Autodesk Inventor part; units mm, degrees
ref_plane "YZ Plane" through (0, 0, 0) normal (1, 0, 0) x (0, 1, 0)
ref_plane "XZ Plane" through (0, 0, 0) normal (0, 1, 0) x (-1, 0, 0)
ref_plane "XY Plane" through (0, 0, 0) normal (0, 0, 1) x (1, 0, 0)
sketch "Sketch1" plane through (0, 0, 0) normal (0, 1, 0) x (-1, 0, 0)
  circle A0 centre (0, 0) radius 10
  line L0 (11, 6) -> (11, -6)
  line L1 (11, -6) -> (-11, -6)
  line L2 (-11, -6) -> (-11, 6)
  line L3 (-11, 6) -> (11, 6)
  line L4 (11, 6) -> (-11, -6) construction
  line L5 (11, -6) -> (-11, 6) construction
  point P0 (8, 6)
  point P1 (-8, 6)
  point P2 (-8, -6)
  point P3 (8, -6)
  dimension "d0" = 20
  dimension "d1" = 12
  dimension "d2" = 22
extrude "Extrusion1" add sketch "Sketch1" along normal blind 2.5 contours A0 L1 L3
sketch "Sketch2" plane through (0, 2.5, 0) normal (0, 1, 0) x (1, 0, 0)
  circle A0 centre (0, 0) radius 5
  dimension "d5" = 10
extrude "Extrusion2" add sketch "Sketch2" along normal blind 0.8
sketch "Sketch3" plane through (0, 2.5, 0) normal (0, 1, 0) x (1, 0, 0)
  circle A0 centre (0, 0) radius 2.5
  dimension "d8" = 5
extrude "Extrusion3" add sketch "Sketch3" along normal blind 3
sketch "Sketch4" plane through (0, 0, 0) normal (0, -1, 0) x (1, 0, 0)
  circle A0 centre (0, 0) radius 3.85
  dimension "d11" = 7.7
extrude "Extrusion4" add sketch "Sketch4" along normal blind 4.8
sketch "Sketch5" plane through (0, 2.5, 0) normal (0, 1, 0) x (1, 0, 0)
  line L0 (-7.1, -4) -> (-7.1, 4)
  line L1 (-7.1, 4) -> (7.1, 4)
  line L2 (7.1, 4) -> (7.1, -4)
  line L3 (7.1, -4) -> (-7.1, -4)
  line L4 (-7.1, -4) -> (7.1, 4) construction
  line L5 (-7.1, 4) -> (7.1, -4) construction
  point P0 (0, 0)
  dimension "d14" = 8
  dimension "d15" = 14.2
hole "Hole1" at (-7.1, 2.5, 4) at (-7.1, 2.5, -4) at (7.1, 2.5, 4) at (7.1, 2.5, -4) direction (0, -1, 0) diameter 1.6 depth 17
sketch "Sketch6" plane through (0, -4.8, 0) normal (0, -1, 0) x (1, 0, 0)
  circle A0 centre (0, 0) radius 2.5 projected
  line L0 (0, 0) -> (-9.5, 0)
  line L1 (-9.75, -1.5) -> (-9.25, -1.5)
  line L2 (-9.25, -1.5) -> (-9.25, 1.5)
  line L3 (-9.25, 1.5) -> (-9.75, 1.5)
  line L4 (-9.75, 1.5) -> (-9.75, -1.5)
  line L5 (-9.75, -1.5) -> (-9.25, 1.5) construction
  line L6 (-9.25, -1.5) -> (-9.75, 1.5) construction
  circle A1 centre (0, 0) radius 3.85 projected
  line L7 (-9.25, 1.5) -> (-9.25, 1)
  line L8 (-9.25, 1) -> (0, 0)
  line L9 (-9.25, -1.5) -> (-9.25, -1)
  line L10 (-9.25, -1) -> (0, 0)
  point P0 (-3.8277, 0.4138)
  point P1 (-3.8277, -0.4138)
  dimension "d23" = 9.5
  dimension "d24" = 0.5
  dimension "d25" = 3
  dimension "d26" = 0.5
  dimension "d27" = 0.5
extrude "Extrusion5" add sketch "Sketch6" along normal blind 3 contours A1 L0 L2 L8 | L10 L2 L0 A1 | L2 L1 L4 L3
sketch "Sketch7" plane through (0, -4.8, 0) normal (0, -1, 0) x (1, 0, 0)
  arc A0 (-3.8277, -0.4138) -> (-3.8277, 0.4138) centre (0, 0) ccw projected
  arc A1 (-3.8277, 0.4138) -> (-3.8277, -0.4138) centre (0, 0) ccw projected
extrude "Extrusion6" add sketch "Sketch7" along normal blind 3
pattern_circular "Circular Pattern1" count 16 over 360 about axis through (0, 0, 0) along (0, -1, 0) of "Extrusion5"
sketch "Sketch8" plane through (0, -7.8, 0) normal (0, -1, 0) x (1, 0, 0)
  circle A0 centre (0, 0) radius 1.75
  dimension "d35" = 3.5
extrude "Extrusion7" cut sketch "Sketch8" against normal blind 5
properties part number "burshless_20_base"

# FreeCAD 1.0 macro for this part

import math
import FreeCAD as App
import Part
import Sketcher
Q = App.Units.Quantity

doc = App.newDocument("Part")
body = doc.addObject("PartDesign::Body", "Body")
body.AllowCompound = True

# Sketch on XZ plane
sketch1 = doc.addObject("Sketcher::SketchObject", "Sketch")
body.addObject(sketch1)
sketch1.AttachmentSupport = (doc.XZ_Plane, [""])
sketch1.MapMode = "FlatFace"
sketch1.addGeometry([
    Part.ArcOfCircle(Part.Circle(App.Vector(0, 0, 0), App.Vector(0, 0, 1), 10), math.radians(143), math.radians(217)),
    Part.LineSegment(App.Vector(-8, 6, 0), App.Vector(8, 6, 0)),
    Part.ArcOfCircle(Part.Circle(App.Vector(0, 0, 0), App.Vector(0, 0, 1), 10), math.radians(-37), math.radians(37)),
    Part.LineSegment(App.Vector(8, -6, 0), App.Vector(-8, -6, 0)),
], False)
sketch1.addConstraint([
    Sketcher.Constraint("Coincident", 0, 1, 1, 1),
    Sketcher.Constraint("Coincident", 1, 2, 2, 2),
    Sketcher.Constraint("Coincident", 2, 1, 3, 1),
    Sketcher.Constraint("Coincident", 3, 2, 0, 2),
    Sketcher.Constraint("Horizontal", 1),
    Sketcher.Constraint("Horizontal", 3),
    Sketcher.Constraint("Coincident", 0, 3, -1, 1),
    Sketcher.Constraint("Coincident", 2, 3, -1, 1),
    Sketcher.Constraint("Equal", 0, 2),
    Sketcher.Constraint("Vertical", 1, 2, 2, 1),
    Sketcher.Constraint("Radius", 0, Q("10 mm")),
    Sketcher.Constraint("DistanceY", 2, 1, 1, 2, Q("12 mm")),
])
pad1 = doc.addObject("PartDesign::Pad", "Pad")
body.addObject(pad1)
pad1.Profile = sketch1
pad1.Length = 2.5
pad1.Reversed = True

# Sketch on XZ plane
sketch2 = doc.addObject("Sketcher::SketchObject", "Sketch001")
body.addObject(sketch2)
sketch2.AttachmentSupport = (doc.XZ_Plane, [""])
sketch2.MapMode = "FlatFace"
sketch2.AttachmentOffset = App.Placement(App.Vector(0, 0, -2.5), App.Rotation())
sketch2.addGeometry(Part.Circle(App.Vector(0, 0, 0), App.Vector(0, 0, 1), 5), False)
sketch2.addConstraint([
    Sketcher.Constraint("Coincident", 0, 3, -1, 1),
    Sketcher.Constraint("Diameter", 0, Q("10 mm")),
])
pad2 = doc.addObject("PartDesign::Pad", "Pad001")
body.addObject(pad2)
pad2.Profile = sketch2
pad2.Length = 0.8
pad2.Reversed = True

# Sketch on XZ plane
sketch3 = doc.addObject("Sketcher::SketchObject", "Sketch002")
body.addObject(sketch3)
sketch3.AttachmentSupport = (doc.XZ_Plane, [""])
sketch3.MapMode = "FlatFace"
sketch3.AttachmentOffset = App.Placement(App.Vector(0, 0, -2.5), App.Rotation())
sketch3.addGeometry(Part.Circle(App.Vector(0, 0, 0), App.Vector(0, 0, 1), 2.5), False)
sketch3.addConstraint([
    Sketcher.Constraint("Coincident", 0, 3, -1, 1),
    Sketcher.Constraint("Diameter", 0, Q("5 mm")),
])
pad3 = doc.addObject("PartDesign::Pad", "Pad002")
body.addObject(pad3)
pad3.Profile = sketch3
pad3.Length = 3
pad3.Reversed = True

# Sketch on XZ plane
sketch4 = doc.addObject("Sketcher::SketchObject", "Sketch003")
body.addObject(sketch4)
sketch4.AttachmentSupport = (doc.XZ_Plane, [""])
sketch4.MapMode = "FlatFace"
sketch4.addGeometry(Part.Circle(App.Vector(0, 0, 0), App.Vector(0, 0, 1), 3.9), False)
sketch4.addConstraint([
    Sketcher.Constraint("Coincident", 0, 3, -1, 1),
    Sketcher.Constraint("Diameter", 0, Q("7.7 mm")),
])
pad4 = doc.addObject("PartDesign::Pad", "Pad003")
body.addObject(pad4)
pad4.Profile = sketch4
pad4.Length = 4.8

# Sketch on XZ plane
sketch5 = doc.addObject("Sketcher::SketchObject", "Sketch004")
body.addObject(sketch5)
sketch5.AttachmentSupport = (doc.XZ_Plane, [""])
sketch5.MapMode = "FlatFace"
sketch5.AttachmentOffset = App.Placement(App.Vector(0, 0, -2.5), App.Rotation())
sketch5.addGeometry([
    Part.Circle(App.Vector(-7.1, 4, 0), App.Vector(0, 0, 1), 0.8),
    Part.Circle(App.Vector(-7.1, -4, 0), App.Vector(0, 0, 1), 0.8),
    Part.Circle(App.Vector(7.1, 4, 0), App.Vector(0, 0, 1), 0.8),
    Part.Circle(App.Vector(7.1, -4, 0), App.Vector(0, 0, 1), 0.8),
], False)
sketch5.addConstraint([
    Sketcher.Constraint("Equal", 0, 1),
    Sketcher.Constraint("Equal", 1, 2),
    Sketcher.Constraint("Equal", 2, 3),
    Sketcher.Constraint("Symmetric", 1, 3, 2, 3, -1, 1),
    Sketcher.Constraint("Symmetric", 0, 3, 3, 3, -1, 1),
    Sketcher.Constraint("Symmetric", 0, 3, 2, 3, -2),
    Sketcher.Constraint("Diameter", 0, Q("1.6 mm")),
    Sketcher.Constraint("DistanceY", -1, 1, 0, 3, Q("4 mm")),
    Sketcher.Constraint("DistanceX", 0, 3, -1, 1, Q("7.1 mm")),
])
doc.recompute()
hole = doc.addObject("PartDesign::Hole", "Hole")
body.addObject(hole)
hole.Profile = sketch5
hole.ThreadType = "None"
hole.Diameter = 1.6
hole.DepthType = "Dimension"
hole.Depth = 17
hole.DrillPoint = "Flat"
hole.Reversed = True

# Sketch on XZ plane
sketch6 = doc.addObject("Sketcher::SketchObject", "Sketch005")
body.addObject(sketch6)
sketch6.AttachmentSupport = (doc.XZ_Plane, [""])
sketch6.MapMode = "FlatFace"
sketch6.AttachmentOffset = App.Placement(App.Vector(0, 0, 4.8), App.Rotation())
sketch6.addGeometry([
    Part.LineSegment(App.Vector(-3.8, 0.4, 0), App.Vector(-9.2, 1, 0)),  # 0
    Part.LineSegment(App.Vector(-9.2, 1, 0), App.Vector(-9.2, 1.5, 0)),  # 1
    Part.LineSegment(App.Vector(-9.2, 1.5, 0), App.Vector(-9.8, 1.5, 0)),  # 2
    Part.LineSegment(App.Vector(-9.8, 1.5, 0), App.Vector(-9.8, -1.5, 0)),  # 3
    Part.LineSegment(App.Vector(-9.8, -1.5, 0), App.Vector(-9.2, -1.5, 0)),  # 4
    Part.LineSegment(App.Vector(-9.2, -1.5, 0), App.Vector(-9.2, -1, 0)),  # 5
    Part.LineSegment(App.Vector(-9.2, -1, 0), App.Vector(-3.8, -0.4, 0)),  # 6
    Part.ArcOfCircle(Part.Circle(App.Vector(0, 0, 0), App.Vector(0, 0, 1), 3.9), math.radians(173.83), math.radians(186.17)),  # 7
], False)
sketch6.addConstraint([
    Sketcher.Constraint("Coincident", 0, 2, 1, 1),
    Sketcher.Constraint("Coincident", 1, 2, 2, 1),
    Sketcher.Constraint("Coincident", 2, 2, 3, 1),
    Sketcher.Constraint("Coincident", 3, 2, 4, 1),
    Sketcher.Constraint("Coincident", 4, 2, 5, 1),
    Sketcher.Constraint("Coincident", 5, 2, 6, 1),
    Sketcher.Constraint("Coincident", 6, 2, 7, 2),
    Sketcher.Constraint("Coincident", 7, 1, 0, 1),
    Sketcher.Constraint("Vertical", 1),
    Sketcher.Constraint("Horizontal", 2),
    Sketcher.Constraint("Vertical", 3),
    Sketcher.Constraint("Horizontal", 4),
    Sketcher.Constraint("Vertical", 5),
    Sketcher.Constraint("Coincident", 7, 3, -1, 1),
    Sketcher.Constraint("Symmetric", 1, 2, 4, 2, -1),
    Sketcher.Constraint("Vertical", 6, 2, 7, 1),
    Sketcher.Constraint("Equal", 4, 1),
    Sketcher.Constraint("Equal", 1, 5),
    Sketcher.Constraint("DistanceY", 3, 2, 3, 1, Q("3 mm")),
    Sketcher.Constraint("DistanceX", 2, 2, 2, 1, Q("0.5 mm")),
    Sketcher.Constraint("Radius", 7, Q("3.85 mm")),
    Sketcher.Constraint("Angle", 0, Q("173.8298 deg")),
    Sketcher.Constraint("DistanceX", 0, 2, -1, 1, Q("9.25 mm")),
])
pad5 = doc.addObject("PartDesign::Pad", "Pad004")
body.addObject(pad5)
pad5.Profile = sketch6
pad5.Length = 3

# Sketch on XZ plane
sketch7 = doc.addObject("Sketcher::SketchObject", "Sketch006")
body.addObject(sketch7)
sketch7.AttachmentSupport = (doc.XZ_Plane, [""])
sketch7.MapMode = "FlatFace"
sketch7.AttachmentOffset = App.Placement(App.Vector(0, 0, 4.8), App.Rotation())
sketch7.addGeometry(Part.Circle(App.Vector(0, 0, 0), App.Vector(0, 0, 1), 3.9), False)
sketch7.addConstraint([
    Sketcher.Constraint("Coincident", 0, 3, -1, 1),
    Sketcher.Constraint("Diameter", 0, Q("7.7 mm")),
])
pad6 = doc.addObject("PartDesign::Pad", "Pad005")
body.addObject(pad6)
pad6.Profile = sketch7
pad6.Length = 3
doc.recompute()

polarpattern = doc.addObject("PartDesign::PolarPattern", "PolarPattern")
body.addObject(polarpattern)
polarpattern.Originals = [pad5]
polarpattern.Axis = (doc.Y_Axis, [""])
polarpattern.Angle = 360
polarpattern.Occurrences = 16
body.Tip = polarpattern

# Sketch on XZ plane
sketch8 = doc.addObject("Sketcher::SketchObject", "Sketch007")
body.addObject(sketch8)
sketch8.AttachmentSupport = (doc.XZ_Plane, [""])
sketch8.MapMode = "FlatFace"
sketch8.AttachmentOffset = App.Placement(App.Vector(0, 0, 7.8), App.Rotation())
sketch8.addGeometry(Part.Circle(App.Vector(0, 0, 0), App.Vector(0, 0, 1), 1.8), False)
sketch8.addConstraint([
    Sketcher.Constraint("Coincident", 0, 3, -1, 1),
    Sketcher.Constraint("Diameter", 0, Q("3.5 mm")),
])
pocket1 = doc.addObject("PartDesign::Pocket", "Pocket")
body.addObject(pocket1)
pocket1.Profile = sketch8
pocket1.Length = 5

doc.recompute()
